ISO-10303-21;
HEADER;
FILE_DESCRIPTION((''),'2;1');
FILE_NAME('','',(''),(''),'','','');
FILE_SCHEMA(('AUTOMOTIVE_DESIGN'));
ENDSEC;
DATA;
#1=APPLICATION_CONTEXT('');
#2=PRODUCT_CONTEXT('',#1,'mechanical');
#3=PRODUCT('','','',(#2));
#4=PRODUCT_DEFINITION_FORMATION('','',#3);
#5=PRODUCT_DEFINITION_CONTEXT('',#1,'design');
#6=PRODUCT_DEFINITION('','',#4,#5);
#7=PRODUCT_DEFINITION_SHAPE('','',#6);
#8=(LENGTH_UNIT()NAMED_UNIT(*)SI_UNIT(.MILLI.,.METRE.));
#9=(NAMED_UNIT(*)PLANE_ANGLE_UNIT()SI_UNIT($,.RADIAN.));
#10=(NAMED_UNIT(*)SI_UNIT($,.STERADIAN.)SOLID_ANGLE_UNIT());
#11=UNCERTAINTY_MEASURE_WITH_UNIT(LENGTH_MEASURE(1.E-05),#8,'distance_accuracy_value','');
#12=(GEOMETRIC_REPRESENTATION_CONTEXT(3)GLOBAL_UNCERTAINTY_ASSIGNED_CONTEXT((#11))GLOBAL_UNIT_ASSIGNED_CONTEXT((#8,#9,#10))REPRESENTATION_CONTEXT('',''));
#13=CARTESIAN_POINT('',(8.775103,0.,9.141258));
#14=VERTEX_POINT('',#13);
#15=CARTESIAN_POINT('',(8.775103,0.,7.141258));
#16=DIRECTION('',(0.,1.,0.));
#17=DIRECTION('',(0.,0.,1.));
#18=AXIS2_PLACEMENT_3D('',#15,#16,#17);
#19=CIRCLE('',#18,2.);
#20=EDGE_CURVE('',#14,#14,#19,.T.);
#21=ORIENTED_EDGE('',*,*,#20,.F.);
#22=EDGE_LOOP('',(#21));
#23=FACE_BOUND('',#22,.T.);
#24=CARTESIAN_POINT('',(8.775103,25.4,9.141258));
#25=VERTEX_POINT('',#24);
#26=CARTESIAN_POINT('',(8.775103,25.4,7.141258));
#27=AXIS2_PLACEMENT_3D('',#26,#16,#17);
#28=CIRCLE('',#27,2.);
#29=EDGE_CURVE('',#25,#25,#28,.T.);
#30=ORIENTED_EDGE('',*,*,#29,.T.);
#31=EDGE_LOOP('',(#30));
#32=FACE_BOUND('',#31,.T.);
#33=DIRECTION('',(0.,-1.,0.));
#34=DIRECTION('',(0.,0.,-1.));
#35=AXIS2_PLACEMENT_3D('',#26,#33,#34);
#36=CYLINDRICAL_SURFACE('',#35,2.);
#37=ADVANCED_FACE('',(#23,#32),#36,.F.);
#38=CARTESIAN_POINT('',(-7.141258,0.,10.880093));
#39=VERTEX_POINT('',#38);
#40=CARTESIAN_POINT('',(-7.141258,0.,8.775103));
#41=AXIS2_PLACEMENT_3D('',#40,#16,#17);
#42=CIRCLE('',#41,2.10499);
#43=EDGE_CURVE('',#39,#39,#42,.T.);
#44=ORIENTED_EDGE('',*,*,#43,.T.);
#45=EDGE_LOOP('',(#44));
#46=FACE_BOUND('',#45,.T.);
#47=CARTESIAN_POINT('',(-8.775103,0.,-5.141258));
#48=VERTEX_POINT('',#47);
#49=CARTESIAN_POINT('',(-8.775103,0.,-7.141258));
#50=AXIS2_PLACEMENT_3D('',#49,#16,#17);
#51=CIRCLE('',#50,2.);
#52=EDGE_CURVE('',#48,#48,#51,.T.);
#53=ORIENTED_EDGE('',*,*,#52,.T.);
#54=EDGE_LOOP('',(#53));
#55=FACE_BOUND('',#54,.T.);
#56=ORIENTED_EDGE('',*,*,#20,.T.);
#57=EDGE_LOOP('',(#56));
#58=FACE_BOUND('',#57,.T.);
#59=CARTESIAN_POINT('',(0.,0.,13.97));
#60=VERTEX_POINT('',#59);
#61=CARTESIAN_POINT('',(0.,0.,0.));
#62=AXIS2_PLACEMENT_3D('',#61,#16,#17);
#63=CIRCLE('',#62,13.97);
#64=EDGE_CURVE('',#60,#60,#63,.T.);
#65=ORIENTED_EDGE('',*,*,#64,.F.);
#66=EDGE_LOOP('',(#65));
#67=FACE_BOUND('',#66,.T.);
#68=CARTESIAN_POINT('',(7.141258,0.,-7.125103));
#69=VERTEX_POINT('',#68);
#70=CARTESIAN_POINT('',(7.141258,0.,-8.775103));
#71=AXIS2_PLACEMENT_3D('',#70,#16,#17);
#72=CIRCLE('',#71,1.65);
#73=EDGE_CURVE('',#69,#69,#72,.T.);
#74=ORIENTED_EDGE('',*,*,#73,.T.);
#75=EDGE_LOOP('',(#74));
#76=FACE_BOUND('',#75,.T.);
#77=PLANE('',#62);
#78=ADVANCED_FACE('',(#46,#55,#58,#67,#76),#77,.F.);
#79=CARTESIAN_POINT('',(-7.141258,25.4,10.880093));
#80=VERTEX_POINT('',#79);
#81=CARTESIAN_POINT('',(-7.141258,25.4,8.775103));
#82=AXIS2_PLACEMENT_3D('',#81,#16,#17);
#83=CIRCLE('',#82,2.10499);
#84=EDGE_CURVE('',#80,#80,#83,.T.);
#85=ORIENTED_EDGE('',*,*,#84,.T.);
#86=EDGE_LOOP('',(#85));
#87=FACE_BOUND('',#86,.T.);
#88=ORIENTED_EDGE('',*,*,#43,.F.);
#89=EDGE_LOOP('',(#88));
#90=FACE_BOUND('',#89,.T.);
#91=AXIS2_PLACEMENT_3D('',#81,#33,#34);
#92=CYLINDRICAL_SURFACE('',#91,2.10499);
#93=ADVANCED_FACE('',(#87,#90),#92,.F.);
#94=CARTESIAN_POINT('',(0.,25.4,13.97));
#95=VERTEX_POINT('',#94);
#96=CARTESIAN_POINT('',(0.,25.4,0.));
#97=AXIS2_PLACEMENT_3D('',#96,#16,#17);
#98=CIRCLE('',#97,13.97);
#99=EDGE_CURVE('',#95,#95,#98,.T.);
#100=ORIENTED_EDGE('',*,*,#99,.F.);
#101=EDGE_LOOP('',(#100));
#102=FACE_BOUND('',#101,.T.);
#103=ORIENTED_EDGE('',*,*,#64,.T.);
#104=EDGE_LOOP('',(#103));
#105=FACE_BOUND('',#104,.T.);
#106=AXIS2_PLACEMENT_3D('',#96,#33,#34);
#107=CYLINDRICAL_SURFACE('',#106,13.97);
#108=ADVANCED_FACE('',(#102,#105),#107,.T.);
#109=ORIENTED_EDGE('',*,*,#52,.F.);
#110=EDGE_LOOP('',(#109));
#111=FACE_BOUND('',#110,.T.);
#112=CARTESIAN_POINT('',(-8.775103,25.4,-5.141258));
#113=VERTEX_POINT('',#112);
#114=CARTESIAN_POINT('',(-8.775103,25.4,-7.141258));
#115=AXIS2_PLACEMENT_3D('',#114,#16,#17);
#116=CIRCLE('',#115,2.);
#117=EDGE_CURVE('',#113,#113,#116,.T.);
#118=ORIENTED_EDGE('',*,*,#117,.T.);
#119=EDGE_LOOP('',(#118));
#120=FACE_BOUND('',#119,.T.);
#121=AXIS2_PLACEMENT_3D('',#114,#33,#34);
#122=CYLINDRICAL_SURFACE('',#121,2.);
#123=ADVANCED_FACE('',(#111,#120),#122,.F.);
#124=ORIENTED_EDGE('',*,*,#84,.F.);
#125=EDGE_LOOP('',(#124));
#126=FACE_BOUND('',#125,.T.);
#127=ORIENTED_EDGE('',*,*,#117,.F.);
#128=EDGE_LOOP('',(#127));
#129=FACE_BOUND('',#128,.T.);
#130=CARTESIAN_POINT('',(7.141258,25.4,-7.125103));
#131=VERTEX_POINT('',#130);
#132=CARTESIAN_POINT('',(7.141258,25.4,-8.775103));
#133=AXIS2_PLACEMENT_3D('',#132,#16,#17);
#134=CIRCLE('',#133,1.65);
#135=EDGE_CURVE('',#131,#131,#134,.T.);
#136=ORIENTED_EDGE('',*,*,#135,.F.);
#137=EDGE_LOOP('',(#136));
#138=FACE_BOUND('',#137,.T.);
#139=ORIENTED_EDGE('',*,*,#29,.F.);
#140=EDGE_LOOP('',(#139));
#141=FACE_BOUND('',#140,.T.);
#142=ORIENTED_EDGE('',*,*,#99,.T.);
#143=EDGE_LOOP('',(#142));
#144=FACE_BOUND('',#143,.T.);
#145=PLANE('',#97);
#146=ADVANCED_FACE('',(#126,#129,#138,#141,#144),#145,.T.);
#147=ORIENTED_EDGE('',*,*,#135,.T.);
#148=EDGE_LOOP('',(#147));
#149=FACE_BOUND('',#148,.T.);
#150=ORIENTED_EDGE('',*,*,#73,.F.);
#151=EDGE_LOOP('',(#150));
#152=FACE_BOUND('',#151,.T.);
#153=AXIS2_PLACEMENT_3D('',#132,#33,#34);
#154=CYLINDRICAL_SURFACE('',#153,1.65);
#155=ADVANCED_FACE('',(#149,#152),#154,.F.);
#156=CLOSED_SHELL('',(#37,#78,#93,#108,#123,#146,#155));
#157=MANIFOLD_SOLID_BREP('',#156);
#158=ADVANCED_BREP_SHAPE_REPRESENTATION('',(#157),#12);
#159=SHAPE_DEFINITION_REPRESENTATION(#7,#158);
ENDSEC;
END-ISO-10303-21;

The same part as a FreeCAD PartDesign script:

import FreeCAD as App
import Part
import Sketcher
from FreeCAD import Vector

doc = App.newDocument("Part")
body = doc.addObject("PartDesign::Body", "Body")

sketch1 = doc.addObject("Sketcher::SketchObject", "Sketch")
body.addObject(sketch1)
sketch1.AttachmentSupport = (doc.XZ_Plane, [""])
sketch1.MapMode = "FlatFace"
sketch1.addGeometry([
    Part.Circle(Vector(0, 0, 0), Vector(0, 0, 1), 13.97),
    Part.Circle(Vector(-8.775103, -7.141258, 0), Vector(0, 0, 1), 2),
    Part.Circle(Vector(-7.141258, 8.775103, 0), Vector(0, 0, 1), 2.10499),
    Part.Circle(Vector(7.141258, -8.775103, 0), Vector(0, 0, 1), 1.65),
    Part.Circle(Vector(8.775103, 7.141258, 0), Vector(0, 0, 1), 2),
], False)
sketch1.addConstraint([
    Sketcher.Constraint("Coincident", 0, 3, -1, 1),
    Sketcher.Constraint("Equal", 1, 4),
    Sketcher.Constraint("Symmetric", 2, 3, 3, 3, -1, 1),
    Sketcher.Constraint("Symmetric", 1, 3, 4, 3, -1, 1),
    Sketcher.Constraint("Diameter", 1, 4.0),
    Sketcher.Constraint("Diameter", 3, 3.3),
    Sketcher.Constraint("Diameter", 0, 27.94),
    Sketcher.Constraint("Diameter", 2, 4.20998),
    Sketcher.Constraint("DistanceY", 1, 3, 2, 3, 15.916361),
    Sketcher.Constraint("DistanceX", 1, 3, 3, 3, 15.916361),
    Sketcher.Constraint("DistanceX", 1, 3, -1, 1, 8.775103),
    Sketcher.Constraint("DistanceY", 1, 3, -1, 1, 7.141258),
])
pad1 = doc.addObject("PartDesign::Pad", "Pad")
body.addObject(pad1)
pad1.Profile = sketch1
pad1.Length = 25.4
pad1.Reversed = True

doc.recompute()
